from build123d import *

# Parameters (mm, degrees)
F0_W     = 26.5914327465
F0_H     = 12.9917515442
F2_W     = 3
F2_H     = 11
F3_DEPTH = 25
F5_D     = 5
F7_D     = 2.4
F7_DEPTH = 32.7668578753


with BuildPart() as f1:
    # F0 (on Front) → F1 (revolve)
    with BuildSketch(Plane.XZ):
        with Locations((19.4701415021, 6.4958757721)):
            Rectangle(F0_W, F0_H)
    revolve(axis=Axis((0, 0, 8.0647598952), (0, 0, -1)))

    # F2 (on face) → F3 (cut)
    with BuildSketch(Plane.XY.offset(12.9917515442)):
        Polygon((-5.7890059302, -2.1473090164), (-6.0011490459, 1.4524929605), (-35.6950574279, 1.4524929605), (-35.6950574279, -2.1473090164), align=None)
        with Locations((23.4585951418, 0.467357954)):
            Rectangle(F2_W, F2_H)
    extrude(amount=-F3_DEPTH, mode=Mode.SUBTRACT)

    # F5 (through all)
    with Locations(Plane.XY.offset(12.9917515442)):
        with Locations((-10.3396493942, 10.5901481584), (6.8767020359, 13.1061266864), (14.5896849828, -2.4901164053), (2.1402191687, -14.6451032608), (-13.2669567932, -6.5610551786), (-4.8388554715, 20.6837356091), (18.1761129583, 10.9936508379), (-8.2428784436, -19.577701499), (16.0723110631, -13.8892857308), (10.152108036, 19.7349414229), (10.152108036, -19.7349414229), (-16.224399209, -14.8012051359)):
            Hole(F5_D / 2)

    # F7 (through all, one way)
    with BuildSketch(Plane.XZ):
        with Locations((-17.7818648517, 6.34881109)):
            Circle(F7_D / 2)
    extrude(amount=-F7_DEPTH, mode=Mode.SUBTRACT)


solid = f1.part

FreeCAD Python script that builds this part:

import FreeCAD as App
import Part
import Sketcher
from FreeCAD import Vector
Q = App.Units.Quantity

doc = App.newDocument("Part")
body = doc.addObject("PartDesign::Body", "Body")

sketch1 = body.newObject("Sketcher::SketchObject", "Sketch")
sketch1.AttachmentSupport = (doc.getObject("XZ_Plane"), [""])
sketch1.MapMode = "FlatFace"
sketch1.addGeometry(Part.LineSegment(Vector(6, 13, 0), Vector(6, 0, 0)), False)
sketch1.addGeometry(Part.LineSegment(Vector(6, 0, 0), Vector(33, 0, 0)), False)
sketch1.addGeometry(Part.LineSegment(Vector(33, 0, 0), Vector(33, 13, 0)), False)
sketch1.addGeometry(Part.LineSegment(Vector(33, 13, 0), Vector(6, 13, 0)), False)
sketch1.addConstraint(Sketcher.Constraint("Coincident", 0, 2, 1, 1))
sketch1.addConstraint(Sketcher.Constraint("Coincident", 1, 2, 2, 1))
sketch1.addConstraint(Sketcher.Constraint("Coincident", 2, 2, 3, 1))
sketch1.addConstraint(Sketcher.Constraint("Coincident", 3, 2, 0, 1))
sketch1.addConstraint(Sketcher.Constraint("Vertical", 0))
sketch1.addConstraint(Sketcher.Constraint("Horizontal", 1))
sketch1.addConstraint(Sketcher.Constraint("Vertical", 2))
sketch1.addConstraint(Sketcher.Constraint("Horizontal", 3))
sketch1.addConstraint(Sketcher.Constraint("PointOnObject", 0, 2, -1))
sketch1.addConstraint(Sketcher.Constraint("DistanceY", 0, 2, 0, 1, Q("12.991752 mm")))
sketch1.addConstraint(Sketcher.Constraint("DistanceX", 1, 1, 1, 2, Q("26.591433 mm")))
sketch1.addConstraint(Sketcher.Constraint("DistanceX", -1, 1, 0, 2, Q("6.174425 mm")))
revolution = body.newObject("PartDesign::Revolution", "Revolution")
revolution.Profile = sketch1
revolution.ReferenceAxis = (sketch1, ["V_Axis"])
revolution.Angle = 360

sketch2 = body.newObject("Sketcher::SketchObject", "Sketch001")
sketch2.AttachmentSupport = (doc.getObject("XY_Plane"), [""])
sketch2.MapMode = "FlatFace"
sketch2.AttachmentOffset = App.Placement(Vector(0, 0, 12.991752), App.Rotation())
sketch2.addGeometry(Part.LineSegment(Vector(-5.8, -2.1, 0), Vector(-6, 1.5, 0)), False)
sketch2.addGeometry(Part.LineSegment(Vector(-6, 1.5, 0), Vector(-35.7, 1.5, 0)), False)
sketch2.addGeometry(Part.LineSegment(Vector(-35.7, 1.5, 0), Vector(-35.7, -2.1, 0)), False)
sketch2.addGeometry(Part.LineSegment(Vector(-35.7, -2.1, 0), Vector(-5.8, -2.1, 0)), False)
sketch2.addGeometry(Part.LineSegment(Vector(22, 6, 0), Vector(22, -5, 0)), False)
sketch2.addGeometry(Part.LineSegment(Vector(22, -5, 0), Vector(25, -5, 0)), False)
sketch2.addGeometry(Part.LineSegment(Vector(25, -5, 0), Vector(25, 6, 0)), False)
sketch2.addGeometry(Part.LineSegment(Vector(25, 6, 0), Vector(22, 6, 0)), False)
sketch2.addConstraint(Sketcher.Constraint("Coincident", 0, 2, 1, 1))
sketch2.addConstraint(Sketcher.Constraint("Coincident", 1, 2, 2, 1))
sketch2.addConstraint(Sketcher.Constraint("Coincident", 2, 2, 3, 1))
sketch2.addConstraint(Sketcher.Constraint("Coincident", 3, 2, 0, 1))
sketch2.addConstraint(Sketcher.Constraint("Coincident", 4, 2, 5, 1))
sketch2.addConstraint(Sketcher.Constraint("Coincident", 5, 2, 6, 1))
sketch2.addConstraint(Sketcher.Constraint("Coincident", 6, 2, 7, 1))
sketch2.addConstraint(Sketcher.Constraint("Coincident", 7, 2, 4, 1))
sketch2.addConstraint(Sketcher.Constraint("Horizontal", 1))
sketch2.addConstraint(Sketcher.Constraint("Vertical", 2))
sketch2.addConstraint(Sketcher.Constraint("Horizontal", 3))
sketch2.addConstraint(Sketcher.Constraint("Vertical", 4))
sketch2.addConstraint(Sketcher.Constraint("Horizontal", 5))
sketch2.addConstraint(Sketcher.Constraint("Vertical", 6))
sketch2.addConstraint(Sketcher.Constraint("Horizontal", 7))
sketch2.addConstraint(Sketcher.Constraint("DistanceX", 5, 1, 5, 2, Q("3 mm")))
sketch2.addConstraint(Sketcher.Constraint("DistanceY", 4, 2, 4, 1, Q("11 mm")))
sketch2.addConstraint(Sketcher.Constraint("DistanceY", 2, 2, 2, 1, Q("3.599802 mm")))
sketch2.addConstraint(Sketcher.Constraint("DistanceX", 1, 2, 1, 1, Q("29.693908 mm")))
sketch2.addConstraint(Sketcher.Constraint("DistanceX", 3, 1, 3, 2, Q("29.906051 mm")))
sketch2.addConstraint(Sketcher.Constraint("DistanceX", 3, 2, 4, 2, Q("27.747601 mm")))
sketch2.addConstraint(Sketcher.Constraint("DistanceX", 0, 2, -1, 1, Q("6.001149 mm")))
sketch2.addConstraint(Sketcher.Constraint("DistanceY", 2, 2, -1, 1, Q("2.147309 mm")))
sketch2.addConstraint(Sketcher.Constraint("DistanceY", 4, 2, -1, 1, Q("5.032642 mm")))
pocket1 = body.newObject("PartDesign::Pocket", "Pocket")
pocket1.Profile = sketch2
pocket1.Length = 25

sketch3 = body.newObject("Sketcher::SketchObject", "Sketch002")
sketch3.AttachmentSupport = (doc.getObject("XY_Plane"), [""])
sketch3.MapMode = "FlatFace"
sketch3.AttachmentOffset = App.Placement(Vector(0, 0, 12.991752), App.Rotation())
sketch3.addGeometry(Part.Circle(Vector(-10.3, 10.6, 0), Vector(0, 0, 1), 2.5), False)
sketch3.addGeometry(Part.Circle(Vector(6.9, 13.1, 0), Vector(0, 0, 1), 2.5), False)
sketch3.addGeometry(Part.Circle(Vector(14.6, -2.5, 0), Vector(0, 0, 1), 2.5), False)
sketch3.addGeometry(Part.Circle(Vector(2.1, -14.6, 0), Vector(0, 0, 1), 2.5), False)
sketch3.addGeometry(Part.Circle(Vector(-13.3, -6.6, 0), Vector(0, 0, 1), 2.5), False)
sketch3.addGeometry(Part.Circle(Vector(-4.8, 20.7, 0), Vector(0, 0, 1), 2.5), False)
sketch3.addGeometry(Part.Circle(Vector(18.2, 11, 0), Vector(0, 0, 1), 2.5), False)
sketch3.addGeometry(Part.Circle(Vector(-8.2, -19.6, 0), Vector(0, 0, 1), 2.5), False)
sketch3.addGeometry(Part.Circle(Vector(16.1, -13.9, 0), Vector(0, 0, 1), 2.5), False)
sketch3.addGeometry(Part.Circle(Vector(10.2, 19.7, 0), Vector(0, 0, 1), 2.5), False)
sketch3.addGeometry(Part.Circle(Vector(10.2, -19.7, 0), Vector(0, 0, 1), 2.5), False)
sketch3.addGeometry(Part.Circle(Vector(-16.2, -14.8, 0), Vector(0, 0, 1), 2.5), False)
sketch3.addConstraint(Sketcher.Constraint("Equal", 0, 1))
sketch3.addConstraint(Sketcher.Constraint("Equal", 1, 2))
sketch3.addConstraint(Sketcher.Constraint("Equal", 2, 3))
sketch3.addConstraint(Sketcher.Constraint("Equal", 3, 4))
sketch3.addConstraint(Sketcher.Constraint("Equal", 4, 5))
sketch3.addConstraint(Sketcher.Constraint("Equal", 5, 6))
sketch3.addConstraint(Sketcher.Constraint("Equal", 6, 7))
sketch3.addConstraint(Sketcher.Constraint("Equal", 7, 8))
sketch3.addConstraint(Sketcher.Constraint("Equal", 8, 9))
sketch3.addConstraint(Sketcher.Constraint("Equal", 9, 10))
sketch3.addConstraint(Sketcher.Constraint("Equal", 10, 11))
sketch3.addConstraint(Sketcher.Constraint("Symmetric", 9, 3, 10, 3, -1))
sketch3.addConstraint(Sketcher.Constraint("Diameter", 0, Q("5 mm")))
sketch3.addConstraint(Sketcher.Constraint("DistanceY", 7, 3, -1, 1, Q("19.577701 mm")))
sketch3.addConstraint(Sketcher.Constraint("DistanceX", 11, 3, -1, 1, Q("16.224399 mm")))
sketch3.addConstraint(Sketcher.Constraint("DistanceX", 4, 3, 5, 3, Q("8.428101 mm")))
sketch3.addConstraint(Sketcher.Constraint("DistanceY", 7, 3, 3, 3, Q("4.932598 mm")))
sketch3.addConstraint(Sketcher.Constraint("DistanceX", 8, 3, 6, 3, Q("2.103802 mm")))
sketch3.addConstraint(Sketcher.Constraint("DistanceY", 11, 3, 3, 3, Q("0.156102 mm")))
sketch3.addConstraint(Sketcher.Constraint("DistanceX", 0, 3, -1, 1, Q("10.339649 mm")))
sketch3.addConstraint(Sketcher.Constraint("DistanceY", -1, 1, 0, 3, Q("10.590148 mm")))
sketch3.addConstraint(Sketcher.Constraint("DistanceX", -1, 1, 3, 3, Q("2.140219 mm")))
sketch3.addConstraint(Sketcher.Constraint("DistanceY", -1, 1, 6, 3, Q("10.993651 mm")))
sketch3.addConstraint(Sketcher.Constraint("DistanceX", 7, 3, -1, 1, Q("8.242878 mm")))
sketch3.addConstraint(Sketcher.Constraint("DistanceX", -1, 1, 8, 3, Q("16.072311 mm")))
sketch3.addConstraint(Sketcher.Constraint("DistanceX", -1, 1, 9, 3, Q("10.152108 mm")))
sketch3.addConstraint(Sketcher.Constraint("DistanceY", -1, 1, 9, 3, Q("19.734941 mm")))
sketch3.addConstraint(Sketcher.Constraint("DistanceX", 0, 3, 1, 3, Q("17.216351 mm")))
sketch3.addConstraint(Sketcher.Constraint("DistanceY", 0, 3, 1, 3, Q("2.515979 mm")))
sketch3.addConstraint(Sketcher.Constraint("DistanceY", 3, 3, 4, 3, Q("8.084048 mm")))
sketch3.addConstraint(Sketcher.Constraint("DistanceX", 4, 3, 1, 3, Q("20.143659 mm")))
sketch3.addConstraint(Sketcher.Constraint("DistanceX", 4, 3, 2, 3, Q("27.856642 mm")))
sketch3.addConstraint(Sketcher.Constraint("DistanceY", 4, 3, 2, 3, Q("4.070939 mm")))
sketch3.addConstraint(Sketcher.Constraint("DistanceY", 1, 3, 5, 3, Q("7.577609 mm")))
sketch3.addConstraint(Sketcher.Constraint("DistanceY", 8, 3, 2, 3, Q("11.399169 mm")))
doc.recompute()
hole = body.newObject("PartDesign::Hole", "Hole")
hole.Profile = sketch3
hole.ThreadType = "None"
hole.Diameter = 5
hole.DepthType = "ThroughAll"

sketch4 = body.newObject("Sketcher::SketchObject", "Sketch003")
sketch4.AttachmentSupport = (doc.getObject("XZ_Plane"), [""])
sketch4.MapMode = "FlatFace"
sketch4.addGeometry(Part.Circle(Vector(-17.8, 6.3, 0), Vector(0, 0, 1), 1.2), False)
sketch4.addConstraint(Sketcher.Constraint("Diameter", 0, Q("2.4 mm")))
sketch4.addConstraint(Sketcher.Constraint("DistanceY", -1, 1, 0, 3, Q("6.348811 mm")))
sketch4.addConstraint(Sketcher.Constraint("DistanceX", 0, 3, -1, 1, Q("17.781865 mm")))
pocket2 = body.newObject("PartDesign::Pocket", "Pocket001")
pocket2.Profile = sketch4
pocket2.Type = "ThroughAll"

doc.recompute()
